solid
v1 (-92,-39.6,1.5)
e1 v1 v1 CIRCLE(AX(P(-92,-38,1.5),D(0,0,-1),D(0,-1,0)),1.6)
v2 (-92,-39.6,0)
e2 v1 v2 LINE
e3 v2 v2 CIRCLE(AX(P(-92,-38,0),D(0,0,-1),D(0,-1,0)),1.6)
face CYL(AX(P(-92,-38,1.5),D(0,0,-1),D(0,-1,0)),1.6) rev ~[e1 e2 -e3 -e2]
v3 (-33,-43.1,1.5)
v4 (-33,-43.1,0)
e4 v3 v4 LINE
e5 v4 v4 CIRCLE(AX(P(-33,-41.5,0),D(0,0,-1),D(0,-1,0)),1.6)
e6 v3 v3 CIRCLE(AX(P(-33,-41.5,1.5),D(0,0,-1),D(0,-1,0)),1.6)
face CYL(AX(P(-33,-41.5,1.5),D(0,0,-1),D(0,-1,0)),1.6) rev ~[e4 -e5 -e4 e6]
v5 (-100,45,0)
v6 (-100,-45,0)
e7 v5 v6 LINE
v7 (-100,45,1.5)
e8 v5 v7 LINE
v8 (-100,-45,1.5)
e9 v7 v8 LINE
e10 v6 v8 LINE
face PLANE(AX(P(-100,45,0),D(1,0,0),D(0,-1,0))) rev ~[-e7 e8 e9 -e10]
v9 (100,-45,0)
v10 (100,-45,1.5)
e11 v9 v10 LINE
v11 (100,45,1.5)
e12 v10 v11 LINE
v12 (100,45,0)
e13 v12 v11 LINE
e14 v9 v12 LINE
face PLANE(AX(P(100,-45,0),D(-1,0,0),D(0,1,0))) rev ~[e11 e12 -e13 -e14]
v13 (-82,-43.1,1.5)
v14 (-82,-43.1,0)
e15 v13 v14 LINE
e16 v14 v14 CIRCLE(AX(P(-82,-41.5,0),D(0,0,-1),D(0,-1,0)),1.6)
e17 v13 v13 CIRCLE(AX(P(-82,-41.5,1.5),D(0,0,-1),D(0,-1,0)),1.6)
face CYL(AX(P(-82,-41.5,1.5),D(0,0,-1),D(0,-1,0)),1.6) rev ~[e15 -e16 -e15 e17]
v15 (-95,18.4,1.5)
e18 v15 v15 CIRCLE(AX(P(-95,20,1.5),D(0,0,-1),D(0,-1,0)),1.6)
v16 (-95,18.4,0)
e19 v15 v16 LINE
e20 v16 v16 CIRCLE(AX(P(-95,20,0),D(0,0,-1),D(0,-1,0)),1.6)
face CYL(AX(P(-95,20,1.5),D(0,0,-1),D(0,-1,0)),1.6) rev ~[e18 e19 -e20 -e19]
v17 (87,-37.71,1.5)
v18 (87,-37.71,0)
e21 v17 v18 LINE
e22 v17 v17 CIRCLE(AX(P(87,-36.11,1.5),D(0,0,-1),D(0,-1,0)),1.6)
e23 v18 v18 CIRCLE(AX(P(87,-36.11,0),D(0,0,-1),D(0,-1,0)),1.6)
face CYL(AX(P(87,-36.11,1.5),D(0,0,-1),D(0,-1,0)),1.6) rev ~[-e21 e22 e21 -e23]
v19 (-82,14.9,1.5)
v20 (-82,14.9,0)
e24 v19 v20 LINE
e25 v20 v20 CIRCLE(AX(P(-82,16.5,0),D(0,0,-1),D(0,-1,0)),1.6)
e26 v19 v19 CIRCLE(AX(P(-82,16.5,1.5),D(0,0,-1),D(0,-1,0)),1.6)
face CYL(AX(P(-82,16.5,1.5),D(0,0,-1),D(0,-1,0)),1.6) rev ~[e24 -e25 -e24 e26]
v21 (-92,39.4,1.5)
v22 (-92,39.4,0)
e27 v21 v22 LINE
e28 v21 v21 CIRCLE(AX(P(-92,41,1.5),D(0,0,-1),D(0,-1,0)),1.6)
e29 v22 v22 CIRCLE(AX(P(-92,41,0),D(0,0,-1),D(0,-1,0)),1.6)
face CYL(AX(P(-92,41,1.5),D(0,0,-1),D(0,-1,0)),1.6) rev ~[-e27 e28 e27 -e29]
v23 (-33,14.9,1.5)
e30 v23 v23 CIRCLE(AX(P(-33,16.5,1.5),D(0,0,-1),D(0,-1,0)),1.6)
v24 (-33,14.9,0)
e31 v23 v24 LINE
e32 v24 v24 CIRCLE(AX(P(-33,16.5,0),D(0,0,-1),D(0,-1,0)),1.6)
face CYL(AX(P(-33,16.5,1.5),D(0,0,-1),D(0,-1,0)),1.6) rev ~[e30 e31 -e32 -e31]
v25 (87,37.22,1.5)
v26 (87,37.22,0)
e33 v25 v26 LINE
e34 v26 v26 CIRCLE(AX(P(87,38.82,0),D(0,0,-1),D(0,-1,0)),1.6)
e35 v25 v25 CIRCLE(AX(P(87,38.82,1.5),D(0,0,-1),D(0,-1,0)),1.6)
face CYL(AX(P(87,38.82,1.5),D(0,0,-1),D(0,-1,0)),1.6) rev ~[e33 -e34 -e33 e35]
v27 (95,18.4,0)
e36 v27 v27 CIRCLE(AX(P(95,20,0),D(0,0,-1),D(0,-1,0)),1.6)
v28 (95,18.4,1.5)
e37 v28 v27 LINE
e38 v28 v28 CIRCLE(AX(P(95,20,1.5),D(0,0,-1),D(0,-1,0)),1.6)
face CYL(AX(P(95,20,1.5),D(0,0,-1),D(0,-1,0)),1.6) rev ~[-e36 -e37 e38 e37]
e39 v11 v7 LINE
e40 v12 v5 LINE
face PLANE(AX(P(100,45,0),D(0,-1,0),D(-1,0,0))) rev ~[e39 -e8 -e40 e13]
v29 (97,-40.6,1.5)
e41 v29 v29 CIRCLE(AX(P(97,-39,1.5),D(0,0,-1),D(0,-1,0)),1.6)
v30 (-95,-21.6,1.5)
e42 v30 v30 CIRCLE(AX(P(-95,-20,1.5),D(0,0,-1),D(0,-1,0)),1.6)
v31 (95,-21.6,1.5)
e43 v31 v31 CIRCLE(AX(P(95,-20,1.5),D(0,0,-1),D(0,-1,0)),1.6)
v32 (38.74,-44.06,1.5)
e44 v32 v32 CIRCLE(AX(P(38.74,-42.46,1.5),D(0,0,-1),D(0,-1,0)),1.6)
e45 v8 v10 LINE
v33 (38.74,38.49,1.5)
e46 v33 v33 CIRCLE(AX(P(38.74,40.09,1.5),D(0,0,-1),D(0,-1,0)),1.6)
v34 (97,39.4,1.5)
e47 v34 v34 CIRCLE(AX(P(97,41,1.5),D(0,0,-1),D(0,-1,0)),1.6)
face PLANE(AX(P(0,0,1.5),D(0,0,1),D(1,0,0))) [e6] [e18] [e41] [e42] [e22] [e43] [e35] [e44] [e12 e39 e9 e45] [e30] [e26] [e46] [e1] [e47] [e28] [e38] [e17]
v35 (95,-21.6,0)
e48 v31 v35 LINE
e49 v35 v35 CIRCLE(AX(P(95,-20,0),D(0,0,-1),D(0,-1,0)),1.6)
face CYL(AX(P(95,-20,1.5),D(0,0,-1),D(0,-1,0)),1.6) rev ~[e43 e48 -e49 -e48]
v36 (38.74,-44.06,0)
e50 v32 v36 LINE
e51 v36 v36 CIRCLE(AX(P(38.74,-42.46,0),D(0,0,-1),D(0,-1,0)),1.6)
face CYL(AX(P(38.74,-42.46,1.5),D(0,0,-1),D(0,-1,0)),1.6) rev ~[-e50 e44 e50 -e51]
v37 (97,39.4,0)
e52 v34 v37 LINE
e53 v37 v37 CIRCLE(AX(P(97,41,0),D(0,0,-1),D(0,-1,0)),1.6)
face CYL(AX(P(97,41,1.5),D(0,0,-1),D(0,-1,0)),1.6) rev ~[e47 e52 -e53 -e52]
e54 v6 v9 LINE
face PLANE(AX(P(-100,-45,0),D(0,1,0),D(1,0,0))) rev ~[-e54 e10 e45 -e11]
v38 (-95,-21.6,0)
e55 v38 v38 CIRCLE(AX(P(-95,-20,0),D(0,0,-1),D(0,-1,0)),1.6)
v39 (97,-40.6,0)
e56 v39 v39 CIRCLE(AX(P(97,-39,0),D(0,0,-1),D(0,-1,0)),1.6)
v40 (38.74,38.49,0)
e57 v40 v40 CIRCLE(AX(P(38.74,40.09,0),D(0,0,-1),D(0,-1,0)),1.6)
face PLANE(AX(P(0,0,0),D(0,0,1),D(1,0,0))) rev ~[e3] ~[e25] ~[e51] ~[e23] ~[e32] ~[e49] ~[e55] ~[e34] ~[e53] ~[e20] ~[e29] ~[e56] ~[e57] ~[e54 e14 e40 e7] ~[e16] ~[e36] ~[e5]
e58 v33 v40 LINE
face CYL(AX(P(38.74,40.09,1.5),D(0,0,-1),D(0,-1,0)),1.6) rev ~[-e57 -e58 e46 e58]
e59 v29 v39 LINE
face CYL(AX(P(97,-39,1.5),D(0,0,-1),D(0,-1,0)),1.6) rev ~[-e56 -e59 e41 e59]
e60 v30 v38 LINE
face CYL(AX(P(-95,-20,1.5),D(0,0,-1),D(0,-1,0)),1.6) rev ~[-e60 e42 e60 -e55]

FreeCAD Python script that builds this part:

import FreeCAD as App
import Part
import Sketcher

V = App.Vector
Q = App.Units.Quantity


def add_polygon(sketch, points):
    """Adds a closed chain of lines whose ends are joined by coincident constraints."""
    first, n = sketch.GeometryCount, len(points)
    for a, b in zip(points, points[1:] + points[:1]):
        sketch.addGeometry(Part.LineSegment(App.Vector(*a, 0), App.Vector(*b, 0)), False)
    for i in range(n):
        sketch.addConstraint(Sketcher.Constraint("Coincident", first + i, 2, first + (i + 1) % n, 1))

doc = App.newDocument("Part")
body = doc.addObject("PartDesign::Body", "Body")

sketch1 = body.newObject("Sketcher::SketchObject", "Sketch")
sketch1.AttachmentSupport = (doc.getObject("XY_Plane"), [""])
sketch1.MapMode = "FlatFace"
add_polygon(sketch1, [(-100, 45), (-100, -45), (100, -45), (100, 45)])
sketch1.addConstraint(Sketcher.Constraint("Vertical", 0))
sketch1.addConstraint(Sketcher.Constraint("Horizontal", 1))
sketch1.addConstraint(Sketcher.Constraint("Vertical", 2))
sketch1.addConstraint(Sketcher.Constraint("Horizontal", 3))
sketch1.addConstraint(Sketcher.Constraint("Symmetric", 0, 2, 2, 2, -1, 1))
sketch1.addConstraint(Sketcher.Constraint("DistanceX", 1, 1, 1, 2, Q("200 mm")))
sketch1.addConstraint(Sketcher.Constraint("DistanceY", 0, 2, 0, 1, Q("90 mm")))
pad1 = body.newObject("PartDesign::Pad", "Pad")
pad1.Profile = sketch1
pad1.Length = 1.5

sketch2 = body.newObject("Sketcher::SketchObject", "Sketch001")
sketch2.AttachmentSupport = (doc.getObject("XY_Plane"), [""])
sketch2.MapMode = "FlatFace"
sketch2.AttachmentOffset = App.Placement(V(0, 0, 1.5), App.Rotation())
sketch2.addGeometry(Part.Circle(V(97, 41, 0), V(0, 0, 1), 1.6), False)
sketch2.addGeometry(Part.Circle(V(97, -39, 0), V(0, 0, 1), 1.6), False)
sketch2.addConstraint(Sketcher.Constraint("Equal", 0, 1))
sketch2.addConstraint(Sketcher.Constraint("Vertical", 0, 3, 1, 3))
sketch2.addConstraint(Sketcher.Constraint("Diameter", 0, Q("3.2 mm")))
sketch2.addConstraint(Sketcher.Constraint("DistanceX", -1, 1, 0, 3, Q("97 mm")))
sketch2.addConstraint(Sketcher.Constraint("DistanceY", -1, 1, 0, 3, Q("41 mm")))
sketch2.addConstraint(Sketcher.Constraint("DistanceY", 1, 3, -1, 1, Q("39 mm")))
doc.recompute()
hole = body.newObject("PartDesign::Hole", "Hole")
hole.Profile = sketch2
hole.ThreadType = "None"
hole.Diameter = 3.2
hole.DepthType = "Dimension"
hole.Depth = 8.8
hole.DrillPoint = "Angled"
hole.DrillPointAngle = 118

sketch3 = body.newObject("Sketcher::SketchObject", "Sketch002")
sketch3.AttachmentSupport = (doc.getObject("XY_Plane"), [""])
sketch3.MapMode = "FlatFace"
sketch3.AttachmentOffset = App.Placement(V(0, 0, 1.5), App.Rotation())
sketch3.addGeometry(Part.Circle(V(-92, 41, 0), V(0, 0, 1), 1.6), False)
sketch3.addGeometry(Part.Circle(V(-92, -38, 0), V(0, 0, 1), 1.6), False)
sketch3.addConstraint(Sketcher.Constraint("Equal", 0, 1))
sketch3.addConstraint(Sketcher.Constraint("Vertical", 0, 3, 1, 3))
sketch3.addConstraint(Sketcher.Constraint("Diameter", 0, Q("3.2 mm")))
sketch3.addConstraint(Sketcher.Constraint("DistanceX", 0, 3, -1, 1, Q("92 mm")))
sketch3.addConstraint(Sketcher.Constraint("DistanceY", -1, 1, 0, 3, Q("41 mm")))
sketch3.addConstraint(Sketcher.Constraint("DistanceY", 1, 3, -1, 1, Q("38 mm")))
doc.recompute()
hole2 = body.newObject("PartDesign::Hole", "Hole001")
hole2.Profile = sketch3
hole2.ThreadType = "None"
hole2.Diameter = 3.2
hole2.DepthType = "Dimension"
hole2.Depth = 8.8
hole2.DrillPoint = "Angled"
hole2.DrillPointAngle = 118

sketch4 = body.newObject("Sketcher::SketchObject", "Sketch003")
sketch4.AttachmentSupport = (doc.getObject("XY_Plane"), [""])
sketch4.MapMode = "FlatFace"
sketch4.AttachmentOffset = App.Placement(V(0, 0, 1.5), App.Rotation())
sketch4.addGeometry(Part.Circle(V(87, 38.8, 0), V(0, 0, 1), 1.6), False)
sketch4.addGeometry(Part.Circle(V(87, -36.1, 0), V(0, 0, 1), 1.6), False)
sketch4.addConstraint(Sketcher.Constraint("Equal", 0, 1))
sketch4.addConstraint(Sketcher.Constraint("Vertical", 0, 3, 1, 3))
sketch4.addConstraint(Sketcher.Constraint("Diameter", 0, Q("3.2 mm")))
sketch4.addConstraint(Sketcher.Constraint("DistanceX", -1, 1, 0, 3, Q("87 mm")))
sketch4.addConstraint(Sketcher.Constraint("DistanceY", -1, 1, 0, 3, Q("38.82 mm")))
sketch4.addConstraint(Sketcher.Constraint("DistanceY", 1, 3, -1, 1, Q("36.11 mm")))
doc.recompute()
hole3 = body.newObject("PartDesign::Hole", "Hole002")
hole3.Profile = sketch4
hole3.ThreadType = "None"
hole3.Diameter = 3.2
hole3.DepthType = "Dimension"
hole3.Depth = 8.8
hole3.DrillPoint = "Angled"
hole3.DrillPointAngle = 118

sketch5 = body.newObject("Sketcher::SketchObject", "Sketch004")
sketch5.AttachmentSupport = (doc.getObject("XY_Plane"), [""])
sketch5.MapMode = "FlatFace"
sketch5.AttachmentOffset = App.Placement(V(0, 0, 1.5), App.Rotation())
sketch5.addGeometry(Part.Circle(V(38.7, 40.1, 0), V(0, 0, 1), 1.6), False)
sketch5.addGeometry(Part.Circle(V(38.7, -42.5, 0), V(0, 0, 1), 1.6), False)
sketch5.addConstraint(Sketcher.Constraint("Equal", 0, 1))
sketch5.addConstraint(Sketcher.Constraint("Vertical", 0, 3, 1, 3))
sketch5.addConstraint(Sketcher.Constraint("Diameter", 0, Q("3.2 mm")))
sketch5.addConstraint(Sketcher.Constraint("DistanceX", -1, 1, 0, 3, Q("38.74 mm")))
sketch5.addConstraint(Sketcher.Constraint("DistanceY", -1, 1, 0, 3, Q("40.09 mm")))
sketch5.addConstraint(Sketcher.Constraint("DistanceY", 1, 3, -1, 1, Q("42.46 mm")))
doc.recompute()
hole4 = body.newObject("PartDesign::Hole", "Hole003")
hole4.Profile = sketch5
hole4.ThreadType = "None"
hole4.Diameter = 3.2
hole4.DepthType = "Dimension"
hole4.Depth = 8.8
hole4.DrillPoint = "Angled"
hole4.DrillPointAngle = 118

sketch6 = body.newObject("Sketcher::SketchObject", "Sketch005")
sketch6.AttachmentSupport = (doc.getObject("XY_Plane"), [""])
sketch6.MapMode = "FlatFace"
sketch6.AttachmentOffset = App.Placement(V(0, 0, 1.5), App.Rotation())
sketch6.addGeometry(Part.Circle(V(-82, 16.5, 0), V(0, 0, 1), 1.6), False)
sketch6.addGeometry(Part.Circle(V(-33, 16.5, 0), V(0, 0, 1), 1.6), False)
sketch6.addGeometry(Part.Circle(V(-33, -41.5, 0), V(0, 0, 1), 1.6), False)
sketch6.addGeometry(Part.Circle(V(-82, -41.5, 0), V(0, 0, 1), 1.6), False)
sketch6.addConstraint(Sketcher.Constraint("Equal", 0, 1))
sketch6.addConstraint(Sketcher.Constraint("Equal", 1, 2))
sketch6.addConstraint(Sketcher.Constraint("Equal", 2, 3))
sketch6.addConstraint(Sketcher.Constraint("Horizontal", 0, 3, 1, 3))
sketch6.addConstraint(Sketcher.Constraint("Horizontal", 2, 3, 3, 3))
sketch6.addConstraint(Sketcher.Constraint("Vertical", 1, 3, 2, 3))
sketch6.addConstraint(Sketcher.Constraint("Vertical", 0, 3, 3, 3))
sketch6.addConstraint(Sketcher.Constraint("Diameter", 0, Q("3.2 mm")))
sketch6.addConstraint(Sketcher.Constraint("DistanceX", 0, 3, -1, 1, Q("82 mm")))
sketch6.addConstraint(Sketcher.Constraint("DistanceX", 1, 3, -1, 1, Q("33 mm")))
sketch6.addConstraint(Sketcher.Constraint("DistanceY", 2, 3, 1, 3, Q("58 mm")))
sketch6.addConstraint(Sketcher.Constraint("DistanceY", -1, 1, 0, 3, Q("16.5 mm")))
doc.recompute()
hole5 = body.newObject("PartDesign::Hole", "Hole004")
hole5.Profile = sketch6
hole5.ThreadType = "None"
hole5.Diameter = 3.2
hole5.DepthType = "Dimension"
hole5.Depth = 8.8
hole5.DrillPoint = "Angled"
hole5.DrillPointAngle = 118

sketch7 = body.newObject("Sketcher::SketchObject", "Sketch006")
sketch7.AttachmentSupport = (doc.getObject("XY_Plane"), [""])
sketch7.MapMode = "FlatFace"
sketch7.AttachmentOffset = App.Placement(V(0, 0, 1.5), App.Rotation())
sketch7.addGeometry(Part.Circle(V(-95, 20, 0), V(0, 0, 1), 1.6), False)
sketch7.addGeometry(Part.Circle(V(-95, -20, 0), V(0, 0, 1), 1.6), False)
sketch7.addGeometry(Part.Circle(V(95, 20, 0), V(0, 0, 1), 1.6), False)
sketch7.addGeometry(Part.Circle(V(95, -20, 0), V(0, 0, 1), 1.6), False)
sketch7.addConstraint(Sketcher.Constraint("Equal", 0, 1))
sketch7.addConstraint(Sketcher.Constraint("Equal", 1, 2))
sketch7.addConstraint(Sketcher.Constraint("Equal", 2, 3))
sketch7.addConstraint(Sketcher.Constraint("Symmetric", 1, 3, 2, 3, -1, 1))
sketch7.addConstraint(Sketcher.Constraint("Symmetric", 0, 3, 3, 3, -1, 1))
sketch7.addConstraint(Sketcher.Constraint("Symmetric", 0, 3, 2, 3, -2))
sketch7.addConstraint(Sketcher.Constraint("Diameter", 0, Q("3.2 mm")))
sketch7.addConstraint(Sketcher.Constraint("DistanceX", 0, 3, -1, 1, Q("95 mm")))
sketch7.addConstraint(Sketcher.Constraint("DistanceY", -1, 1, 0, 3, Q("20 mm")))
doc.recompute()
hole6 = body.newObject("PartDesign::Hole", "Hole005")
hole6.Profile = sketch7
hole6.ThreadType = "None"
hole6.Diameter = 3.2
hole6.DepthType = "Dimension"
hole6.Depth = 8.8
hole6.DrillPoint = "Angled"
hole6.DrillPointAngle = 118

doc.recompute()
